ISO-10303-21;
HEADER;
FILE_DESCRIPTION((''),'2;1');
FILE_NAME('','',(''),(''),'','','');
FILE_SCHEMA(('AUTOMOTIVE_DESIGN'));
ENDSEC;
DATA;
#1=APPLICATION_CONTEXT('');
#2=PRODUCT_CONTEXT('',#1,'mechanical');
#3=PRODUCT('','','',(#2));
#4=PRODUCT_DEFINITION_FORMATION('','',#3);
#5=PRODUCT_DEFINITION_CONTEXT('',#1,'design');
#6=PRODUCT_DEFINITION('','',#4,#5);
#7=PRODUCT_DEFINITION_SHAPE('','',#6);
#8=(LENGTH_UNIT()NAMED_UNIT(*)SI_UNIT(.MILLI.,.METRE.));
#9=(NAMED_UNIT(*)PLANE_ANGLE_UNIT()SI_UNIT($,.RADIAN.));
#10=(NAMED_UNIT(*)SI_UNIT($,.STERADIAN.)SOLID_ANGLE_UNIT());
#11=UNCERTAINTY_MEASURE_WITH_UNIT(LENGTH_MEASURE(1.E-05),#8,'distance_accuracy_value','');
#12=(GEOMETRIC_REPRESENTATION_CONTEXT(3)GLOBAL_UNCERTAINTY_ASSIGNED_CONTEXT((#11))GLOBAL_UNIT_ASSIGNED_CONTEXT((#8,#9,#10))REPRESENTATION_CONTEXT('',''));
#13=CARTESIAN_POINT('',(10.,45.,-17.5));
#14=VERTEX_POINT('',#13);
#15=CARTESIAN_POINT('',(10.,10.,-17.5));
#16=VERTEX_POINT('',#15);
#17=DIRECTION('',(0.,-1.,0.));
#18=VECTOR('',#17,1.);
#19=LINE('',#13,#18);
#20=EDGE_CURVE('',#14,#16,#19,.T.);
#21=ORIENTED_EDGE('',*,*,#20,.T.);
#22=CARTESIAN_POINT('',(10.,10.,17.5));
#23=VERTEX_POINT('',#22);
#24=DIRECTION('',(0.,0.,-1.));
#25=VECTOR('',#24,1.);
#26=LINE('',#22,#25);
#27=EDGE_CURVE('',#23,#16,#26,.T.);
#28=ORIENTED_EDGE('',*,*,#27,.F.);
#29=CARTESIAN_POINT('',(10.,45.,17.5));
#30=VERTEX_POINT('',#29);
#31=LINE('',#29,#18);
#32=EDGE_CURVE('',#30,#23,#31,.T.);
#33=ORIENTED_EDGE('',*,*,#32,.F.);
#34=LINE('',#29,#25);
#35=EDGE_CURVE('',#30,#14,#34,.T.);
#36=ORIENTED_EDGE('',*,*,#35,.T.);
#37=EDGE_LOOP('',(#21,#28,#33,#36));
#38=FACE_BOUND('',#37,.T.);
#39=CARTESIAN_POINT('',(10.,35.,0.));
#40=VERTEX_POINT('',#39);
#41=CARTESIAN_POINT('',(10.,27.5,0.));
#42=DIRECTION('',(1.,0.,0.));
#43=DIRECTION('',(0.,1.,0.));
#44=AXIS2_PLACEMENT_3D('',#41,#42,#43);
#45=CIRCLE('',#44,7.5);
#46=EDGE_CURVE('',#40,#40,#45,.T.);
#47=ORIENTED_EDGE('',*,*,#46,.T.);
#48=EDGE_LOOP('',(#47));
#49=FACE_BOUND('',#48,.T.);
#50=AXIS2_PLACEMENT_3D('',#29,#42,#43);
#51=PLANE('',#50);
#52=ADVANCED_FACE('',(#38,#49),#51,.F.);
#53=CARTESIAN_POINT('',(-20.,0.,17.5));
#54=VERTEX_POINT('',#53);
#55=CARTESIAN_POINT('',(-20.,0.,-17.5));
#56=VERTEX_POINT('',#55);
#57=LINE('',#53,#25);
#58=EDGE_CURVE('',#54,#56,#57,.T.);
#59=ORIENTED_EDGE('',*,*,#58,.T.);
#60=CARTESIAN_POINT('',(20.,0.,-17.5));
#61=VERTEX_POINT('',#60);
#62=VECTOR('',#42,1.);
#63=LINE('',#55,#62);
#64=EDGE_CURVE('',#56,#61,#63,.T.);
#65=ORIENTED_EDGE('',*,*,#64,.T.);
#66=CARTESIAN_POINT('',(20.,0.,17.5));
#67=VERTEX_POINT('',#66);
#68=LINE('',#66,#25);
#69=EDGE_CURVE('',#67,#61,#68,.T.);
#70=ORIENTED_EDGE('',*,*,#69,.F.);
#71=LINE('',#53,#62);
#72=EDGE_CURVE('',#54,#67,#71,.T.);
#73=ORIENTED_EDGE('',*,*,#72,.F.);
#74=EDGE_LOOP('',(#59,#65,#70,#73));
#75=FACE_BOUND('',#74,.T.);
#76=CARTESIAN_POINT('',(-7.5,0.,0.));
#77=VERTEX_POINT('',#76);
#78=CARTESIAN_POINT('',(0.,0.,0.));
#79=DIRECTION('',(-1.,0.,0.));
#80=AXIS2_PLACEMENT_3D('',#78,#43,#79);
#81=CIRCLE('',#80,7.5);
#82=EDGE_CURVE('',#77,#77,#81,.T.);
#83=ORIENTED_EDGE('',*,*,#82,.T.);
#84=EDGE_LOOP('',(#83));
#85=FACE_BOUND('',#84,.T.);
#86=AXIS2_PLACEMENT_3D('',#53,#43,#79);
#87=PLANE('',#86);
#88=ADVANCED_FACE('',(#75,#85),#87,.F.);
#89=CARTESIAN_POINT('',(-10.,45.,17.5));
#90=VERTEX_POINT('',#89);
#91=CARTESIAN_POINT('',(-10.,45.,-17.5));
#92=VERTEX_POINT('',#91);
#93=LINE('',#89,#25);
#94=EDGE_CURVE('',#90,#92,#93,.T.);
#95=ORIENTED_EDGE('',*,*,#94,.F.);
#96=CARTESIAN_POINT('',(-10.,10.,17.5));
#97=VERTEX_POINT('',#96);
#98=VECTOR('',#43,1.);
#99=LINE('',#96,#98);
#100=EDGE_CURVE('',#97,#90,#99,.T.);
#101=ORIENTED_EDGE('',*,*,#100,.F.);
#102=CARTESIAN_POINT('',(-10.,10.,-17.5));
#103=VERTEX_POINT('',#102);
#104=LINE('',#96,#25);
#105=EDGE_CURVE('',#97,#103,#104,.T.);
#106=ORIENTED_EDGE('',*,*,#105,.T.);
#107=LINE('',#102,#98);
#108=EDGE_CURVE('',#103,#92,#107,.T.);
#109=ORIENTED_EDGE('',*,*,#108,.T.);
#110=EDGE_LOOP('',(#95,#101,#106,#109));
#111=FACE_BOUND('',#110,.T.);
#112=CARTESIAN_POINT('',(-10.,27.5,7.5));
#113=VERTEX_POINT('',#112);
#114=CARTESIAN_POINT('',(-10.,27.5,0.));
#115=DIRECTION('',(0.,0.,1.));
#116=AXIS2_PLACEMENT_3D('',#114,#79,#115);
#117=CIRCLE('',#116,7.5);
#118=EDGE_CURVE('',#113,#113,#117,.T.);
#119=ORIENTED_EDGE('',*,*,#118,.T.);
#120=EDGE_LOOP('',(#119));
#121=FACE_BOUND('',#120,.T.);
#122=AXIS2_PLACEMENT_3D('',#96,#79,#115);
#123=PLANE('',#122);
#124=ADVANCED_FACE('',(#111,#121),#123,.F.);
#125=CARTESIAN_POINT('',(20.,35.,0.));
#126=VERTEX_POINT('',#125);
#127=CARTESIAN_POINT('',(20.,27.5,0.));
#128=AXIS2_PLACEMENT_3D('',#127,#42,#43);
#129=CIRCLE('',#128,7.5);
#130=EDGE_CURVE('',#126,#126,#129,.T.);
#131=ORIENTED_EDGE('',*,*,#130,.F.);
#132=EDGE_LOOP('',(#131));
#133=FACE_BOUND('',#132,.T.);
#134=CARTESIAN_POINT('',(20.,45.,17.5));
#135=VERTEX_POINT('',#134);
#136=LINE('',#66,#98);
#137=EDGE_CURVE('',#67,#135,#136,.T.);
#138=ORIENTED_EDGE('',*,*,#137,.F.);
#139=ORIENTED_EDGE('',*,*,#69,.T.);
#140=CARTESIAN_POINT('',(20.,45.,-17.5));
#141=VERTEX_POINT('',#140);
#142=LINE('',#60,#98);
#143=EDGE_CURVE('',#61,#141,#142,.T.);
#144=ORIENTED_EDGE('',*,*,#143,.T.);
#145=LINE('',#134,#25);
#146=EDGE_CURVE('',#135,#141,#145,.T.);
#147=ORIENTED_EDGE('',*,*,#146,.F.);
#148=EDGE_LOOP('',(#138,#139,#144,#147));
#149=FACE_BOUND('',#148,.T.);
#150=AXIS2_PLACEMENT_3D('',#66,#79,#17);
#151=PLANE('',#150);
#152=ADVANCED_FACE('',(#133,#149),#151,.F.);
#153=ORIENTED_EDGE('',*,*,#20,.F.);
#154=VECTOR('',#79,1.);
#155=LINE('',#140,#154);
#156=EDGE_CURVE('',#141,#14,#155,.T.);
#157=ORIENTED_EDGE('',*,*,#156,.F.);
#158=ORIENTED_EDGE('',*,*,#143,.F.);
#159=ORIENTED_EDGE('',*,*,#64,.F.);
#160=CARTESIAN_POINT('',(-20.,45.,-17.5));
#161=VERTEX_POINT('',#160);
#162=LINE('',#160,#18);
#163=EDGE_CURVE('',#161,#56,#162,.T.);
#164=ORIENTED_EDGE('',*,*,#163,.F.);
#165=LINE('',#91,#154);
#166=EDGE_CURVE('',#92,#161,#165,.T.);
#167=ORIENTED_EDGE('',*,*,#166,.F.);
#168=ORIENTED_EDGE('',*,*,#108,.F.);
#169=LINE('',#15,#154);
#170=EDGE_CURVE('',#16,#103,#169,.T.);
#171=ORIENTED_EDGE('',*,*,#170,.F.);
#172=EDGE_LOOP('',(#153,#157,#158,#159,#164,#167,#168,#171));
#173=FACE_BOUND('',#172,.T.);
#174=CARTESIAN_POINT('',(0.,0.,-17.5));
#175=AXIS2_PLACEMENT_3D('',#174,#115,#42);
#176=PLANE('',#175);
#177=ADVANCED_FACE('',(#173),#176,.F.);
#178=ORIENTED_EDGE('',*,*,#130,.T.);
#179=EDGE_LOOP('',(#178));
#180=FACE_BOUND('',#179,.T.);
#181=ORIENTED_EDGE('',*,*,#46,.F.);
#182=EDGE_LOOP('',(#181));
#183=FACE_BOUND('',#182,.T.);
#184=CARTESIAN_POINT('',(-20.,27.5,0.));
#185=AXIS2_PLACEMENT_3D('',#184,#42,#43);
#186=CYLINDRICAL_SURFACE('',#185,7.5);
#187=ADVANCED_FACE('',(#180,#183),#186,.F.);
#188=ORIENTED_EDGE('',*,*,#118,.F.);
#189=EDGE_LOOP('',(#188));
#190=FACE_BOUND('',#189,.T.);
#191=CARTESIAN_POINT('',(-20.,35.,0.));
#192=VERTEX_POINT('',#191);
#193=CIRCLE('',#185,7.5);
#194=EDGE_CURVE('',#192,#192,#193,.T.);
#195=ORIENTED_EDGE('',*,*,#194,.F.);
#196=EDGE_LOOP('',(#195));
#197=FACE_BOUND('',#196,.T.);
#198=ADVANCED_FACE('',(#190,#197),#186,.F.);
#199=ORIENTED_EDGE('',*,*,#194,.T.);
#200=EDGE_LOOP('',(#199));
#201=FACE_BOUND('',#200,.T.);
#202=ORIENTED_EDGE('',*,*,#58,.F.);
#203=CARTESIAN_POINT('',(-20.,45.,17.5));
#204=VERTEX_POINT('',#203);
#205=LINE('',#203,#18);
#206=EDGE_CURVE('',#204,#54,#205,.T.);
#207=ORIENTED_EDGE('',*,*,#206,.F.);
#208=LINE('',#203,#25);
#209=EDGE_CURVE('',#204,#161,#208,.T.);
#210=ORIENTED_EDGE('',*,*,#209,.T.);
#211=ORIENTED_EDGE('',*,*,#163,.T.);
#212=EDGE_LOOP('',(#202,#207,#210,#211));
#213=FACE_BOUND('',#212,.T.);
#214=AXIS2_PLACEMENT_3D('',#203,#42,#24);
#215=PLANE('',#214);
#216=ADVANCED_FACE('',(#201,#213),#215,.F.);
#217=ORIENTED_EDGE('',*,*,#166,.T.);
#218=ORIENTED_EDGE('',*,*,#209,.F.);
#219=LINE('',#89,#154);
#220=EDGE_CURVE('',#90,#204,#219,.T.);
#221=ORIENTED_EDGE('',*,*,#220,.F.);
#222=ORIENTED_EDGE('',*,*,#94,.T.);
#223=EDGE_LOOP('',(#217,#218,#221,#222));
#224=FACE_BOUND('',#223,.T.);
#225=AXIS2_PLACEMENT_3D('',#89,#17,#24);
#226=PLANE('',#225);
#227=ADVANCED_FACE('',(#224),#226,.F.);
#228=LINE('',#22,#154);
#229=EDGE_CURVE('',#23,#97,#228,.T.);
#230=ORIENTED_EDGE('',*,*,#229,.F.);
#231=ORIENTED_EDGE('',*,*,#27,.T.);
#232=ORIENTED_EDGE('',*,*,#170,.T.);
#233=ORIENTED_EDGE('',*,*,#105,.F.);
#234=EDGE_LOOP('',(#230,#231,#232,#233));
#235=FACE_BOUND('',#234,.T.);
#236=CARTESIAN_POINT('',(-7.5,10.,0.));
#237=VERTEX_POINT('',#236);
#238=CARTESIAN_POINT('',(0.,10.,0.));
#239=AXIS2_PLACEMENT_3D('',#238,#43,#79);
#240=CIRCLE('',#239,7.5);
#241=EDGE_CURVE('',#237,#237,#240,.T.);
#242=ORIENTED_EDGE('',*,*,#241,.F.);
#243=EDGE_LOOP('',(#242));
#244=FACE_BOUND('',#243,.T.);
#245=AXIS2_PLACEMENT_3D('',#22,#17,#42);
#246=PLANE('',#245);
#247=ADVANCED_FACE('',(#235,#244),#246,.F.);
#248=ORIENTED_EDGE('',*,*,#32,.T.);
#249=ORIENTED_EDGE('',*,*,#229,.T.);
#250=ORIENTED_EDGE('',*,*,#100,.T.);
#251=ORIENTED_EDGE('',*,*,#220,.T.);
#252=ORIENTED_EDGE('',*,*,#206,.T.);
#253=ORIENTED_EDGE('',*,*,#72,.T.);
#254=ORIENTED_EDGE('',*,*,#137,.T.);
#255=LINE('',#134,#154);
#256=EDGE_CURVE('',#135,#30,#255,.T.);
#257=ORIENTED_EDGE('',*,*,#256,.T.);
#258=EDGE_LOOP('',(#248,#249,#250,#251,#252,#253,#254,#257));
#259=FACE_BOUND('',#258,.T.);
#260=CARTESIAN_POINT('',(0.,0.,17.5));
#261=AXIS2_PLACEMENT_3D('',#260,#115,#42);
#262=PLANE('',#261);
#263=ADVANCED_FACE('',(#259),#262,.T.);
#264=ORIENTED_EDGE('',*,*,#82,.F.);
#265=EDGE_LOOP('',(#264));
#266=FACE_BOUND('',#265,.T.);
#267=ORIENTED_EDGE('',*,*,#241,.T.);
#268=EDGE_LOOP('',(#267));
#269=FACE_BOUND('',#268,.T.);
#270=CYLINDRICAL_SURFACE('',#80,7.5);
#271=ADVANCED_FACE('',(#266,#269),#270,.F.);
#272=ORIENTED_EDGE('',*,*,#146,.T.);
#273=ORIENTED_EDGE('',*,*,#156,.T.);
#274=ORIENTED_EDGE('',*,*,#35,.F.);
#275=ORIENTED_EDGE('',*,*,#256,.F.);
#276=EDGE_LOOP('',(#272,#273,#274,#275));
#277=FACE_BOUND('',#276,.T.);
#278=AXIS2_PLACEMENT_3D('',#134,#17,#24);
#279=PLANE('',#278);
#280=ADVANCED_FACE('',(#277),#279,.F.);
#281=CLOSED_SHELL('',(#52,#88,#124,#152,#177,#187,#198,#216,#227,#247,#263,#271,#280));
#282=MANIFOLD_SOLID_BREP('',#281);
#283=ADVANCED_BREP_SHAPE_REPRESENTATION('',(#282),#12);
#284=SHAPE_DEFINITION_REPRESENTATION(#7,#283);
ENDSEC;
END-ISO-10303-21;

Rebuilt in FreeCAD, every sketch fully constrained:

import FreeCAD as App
import Part
import Sketcher

doc = App.newDocument("Part")
body = doc.addObject("PartDesign::Body", "Body")

# Sketch on XY plane
sketch1 = body.newObject("Sketcher::SketchObject", "Sketch")
sketch1.AttachmentSupport = (doc.getObject("XY_Plane"), [""])
sketch1.MapMode = "FlatFace"
sketch1.addGeometry([
    Part.LineSegment(App.Vector(-20, 45, 0), App.Vector(-20, 0, 0)),  # 0
    Part.LineSegment(App.Vector(-20, 0, 0), App.Vector(20, 0, 0)),  # 1
    Part.LineSegment(App.Vector(20, 0, 0), App.Vector(20, 45, 0)),  # 2
    Part.LineSegment(App.Vector(20, 45, 0), App.Vector(10, 45, 0)),  # 3
    Part.LineSegment(App.Vector(10, 45, 0), App.Vector(10, 10, 0)),  # 4
    Part.LineSegment(App.Vector(10, 10, 0), App.Vector(-10, 10, 0)),  # 5
    Part.LineSegment(App.Vector(-10, 10, 0), App.Vector(-10, 45, 0)),  # 6
    Part.LineSegment(App.Vector(-10, 45, 0), App.Vector(-20, 45, 0)),  # 7
], False)
sketch1.addConstraint([
    Sketcher.Constraint("Coincident", 0, 2, 1, 1),
    Sketcher.Constraint("Coincident", 1, 2, 2, 1),
    Sketcher.Constraint("Coincident", 2, 2, 3, 1),
    Sketcher.Constraint("Coincident", 3, 2, 4, 1),
    Sketcher.Constraint("Coincident", 4, 2, 5, 1),
    Sketcher.Constraint("Coincident", 5, 2, 6, 1),
    Sketcher.Constraint("Coincident", 6, 2, 7, 1),
    Sketcher.Constraint("Coincident", 7, 2, 0, 1),
    Sketcher.Constraint("Vertical", 0),
    Sketcher.Constraint("Horizontal", 1),
    Sketcher.Constraint("Vertical", 2),
    Sketcher.Constraint("Horizontal", 3),
    Sketcher.Constraint("Vertical", 4),
    Sketcher.Constraint("Horizontal", 5),
    Sketcher.Constraint("Vertical", 6),
    Sketcher.Constraint("Horizontal", 7),
    Sketcher.Constraint("Symmetric", 0, 2, 1, 2, -1, 1),
    Sketcher.Constraint("Symmetric", 3, 2, 6, 2, -2),
    Sketcher.Constraint("DistanceX", 1, 1, 1, 2, 40.0),
    Sketcher.Constraint("DistanceX", 3, 2, 3, 1, 10.0),
    Sketcher.Constraint("DistanceY", 0, 2, 0, 1, 45.0),
    Sketcher.Constraint("DistanceY", 4, 2, 4, 1, 35.0),
])
pad1 = body.newObject("PartDesign::Pad", "Pad")
pad1.Profile = sketch1
pad1.Length = 35
pad1.Midplane = True

# Sketch on YZ plane
sketch2 = body.newObject("Sketcher::SketchObject", "Sketch001")
sketch2.AttachmentSupport = (doc.getObject("YZ_Plane"), [""])
sketch2.MapMode = "FlatFace"
sketch2.AttachmentOffset = App.Placement(App.Vector(0, 0, 20), App.Rotation())
sketch2.addGeometry(Part.Circle(App.Vector(28, 0, 0), App.Vector(0, 0, 1), 8), False)
sketch2.addConstraint([
    Sketcher.Constraint("PointOnObject", 0, 3, -1),
    Sketcher.Constraint("Diameter", 0, 15.0),
    Sketcher.Constraint("DistanceX", -1, 1, 0, 3, 27.5),
])
pocket1 = body.newObject("PartDesign::Pocket", "Pocket")
pocket1.Profile = sketch2
pocket1.Type = "ThroughAll"

# Sketch on XZ plane
sketch3 = body.newObject("Sketcher::SketchObject", "Sketch002")
sketch3.AttachmentSupport = (doc.getObject("XZ_Plane"), [""])
sketch3.MapMode = "FlatFace"
sketch3.AttachmentOffset = App.Placement(App.Vector(0, 0, -10), App.Rotation())
sketch3.addGeometry(Part.Circle(App.Vector(0, 0, 0), App.Vector(0, 0, 1), 8), False)
sketch3.addConstraint([
    Sketcher.Constraint("Coincident", 0, 3, -1, 1),
    Sketcher.Constraint("Diameter", 0, 15.0),
])
pocket2 = body.newObject("PartDesign::Pocket", "Pocket001")
pocket2.Profile = sketch3
pocket2.Type = "ThroughAll"
pocket2.Reversed = True

doc.recompute()
